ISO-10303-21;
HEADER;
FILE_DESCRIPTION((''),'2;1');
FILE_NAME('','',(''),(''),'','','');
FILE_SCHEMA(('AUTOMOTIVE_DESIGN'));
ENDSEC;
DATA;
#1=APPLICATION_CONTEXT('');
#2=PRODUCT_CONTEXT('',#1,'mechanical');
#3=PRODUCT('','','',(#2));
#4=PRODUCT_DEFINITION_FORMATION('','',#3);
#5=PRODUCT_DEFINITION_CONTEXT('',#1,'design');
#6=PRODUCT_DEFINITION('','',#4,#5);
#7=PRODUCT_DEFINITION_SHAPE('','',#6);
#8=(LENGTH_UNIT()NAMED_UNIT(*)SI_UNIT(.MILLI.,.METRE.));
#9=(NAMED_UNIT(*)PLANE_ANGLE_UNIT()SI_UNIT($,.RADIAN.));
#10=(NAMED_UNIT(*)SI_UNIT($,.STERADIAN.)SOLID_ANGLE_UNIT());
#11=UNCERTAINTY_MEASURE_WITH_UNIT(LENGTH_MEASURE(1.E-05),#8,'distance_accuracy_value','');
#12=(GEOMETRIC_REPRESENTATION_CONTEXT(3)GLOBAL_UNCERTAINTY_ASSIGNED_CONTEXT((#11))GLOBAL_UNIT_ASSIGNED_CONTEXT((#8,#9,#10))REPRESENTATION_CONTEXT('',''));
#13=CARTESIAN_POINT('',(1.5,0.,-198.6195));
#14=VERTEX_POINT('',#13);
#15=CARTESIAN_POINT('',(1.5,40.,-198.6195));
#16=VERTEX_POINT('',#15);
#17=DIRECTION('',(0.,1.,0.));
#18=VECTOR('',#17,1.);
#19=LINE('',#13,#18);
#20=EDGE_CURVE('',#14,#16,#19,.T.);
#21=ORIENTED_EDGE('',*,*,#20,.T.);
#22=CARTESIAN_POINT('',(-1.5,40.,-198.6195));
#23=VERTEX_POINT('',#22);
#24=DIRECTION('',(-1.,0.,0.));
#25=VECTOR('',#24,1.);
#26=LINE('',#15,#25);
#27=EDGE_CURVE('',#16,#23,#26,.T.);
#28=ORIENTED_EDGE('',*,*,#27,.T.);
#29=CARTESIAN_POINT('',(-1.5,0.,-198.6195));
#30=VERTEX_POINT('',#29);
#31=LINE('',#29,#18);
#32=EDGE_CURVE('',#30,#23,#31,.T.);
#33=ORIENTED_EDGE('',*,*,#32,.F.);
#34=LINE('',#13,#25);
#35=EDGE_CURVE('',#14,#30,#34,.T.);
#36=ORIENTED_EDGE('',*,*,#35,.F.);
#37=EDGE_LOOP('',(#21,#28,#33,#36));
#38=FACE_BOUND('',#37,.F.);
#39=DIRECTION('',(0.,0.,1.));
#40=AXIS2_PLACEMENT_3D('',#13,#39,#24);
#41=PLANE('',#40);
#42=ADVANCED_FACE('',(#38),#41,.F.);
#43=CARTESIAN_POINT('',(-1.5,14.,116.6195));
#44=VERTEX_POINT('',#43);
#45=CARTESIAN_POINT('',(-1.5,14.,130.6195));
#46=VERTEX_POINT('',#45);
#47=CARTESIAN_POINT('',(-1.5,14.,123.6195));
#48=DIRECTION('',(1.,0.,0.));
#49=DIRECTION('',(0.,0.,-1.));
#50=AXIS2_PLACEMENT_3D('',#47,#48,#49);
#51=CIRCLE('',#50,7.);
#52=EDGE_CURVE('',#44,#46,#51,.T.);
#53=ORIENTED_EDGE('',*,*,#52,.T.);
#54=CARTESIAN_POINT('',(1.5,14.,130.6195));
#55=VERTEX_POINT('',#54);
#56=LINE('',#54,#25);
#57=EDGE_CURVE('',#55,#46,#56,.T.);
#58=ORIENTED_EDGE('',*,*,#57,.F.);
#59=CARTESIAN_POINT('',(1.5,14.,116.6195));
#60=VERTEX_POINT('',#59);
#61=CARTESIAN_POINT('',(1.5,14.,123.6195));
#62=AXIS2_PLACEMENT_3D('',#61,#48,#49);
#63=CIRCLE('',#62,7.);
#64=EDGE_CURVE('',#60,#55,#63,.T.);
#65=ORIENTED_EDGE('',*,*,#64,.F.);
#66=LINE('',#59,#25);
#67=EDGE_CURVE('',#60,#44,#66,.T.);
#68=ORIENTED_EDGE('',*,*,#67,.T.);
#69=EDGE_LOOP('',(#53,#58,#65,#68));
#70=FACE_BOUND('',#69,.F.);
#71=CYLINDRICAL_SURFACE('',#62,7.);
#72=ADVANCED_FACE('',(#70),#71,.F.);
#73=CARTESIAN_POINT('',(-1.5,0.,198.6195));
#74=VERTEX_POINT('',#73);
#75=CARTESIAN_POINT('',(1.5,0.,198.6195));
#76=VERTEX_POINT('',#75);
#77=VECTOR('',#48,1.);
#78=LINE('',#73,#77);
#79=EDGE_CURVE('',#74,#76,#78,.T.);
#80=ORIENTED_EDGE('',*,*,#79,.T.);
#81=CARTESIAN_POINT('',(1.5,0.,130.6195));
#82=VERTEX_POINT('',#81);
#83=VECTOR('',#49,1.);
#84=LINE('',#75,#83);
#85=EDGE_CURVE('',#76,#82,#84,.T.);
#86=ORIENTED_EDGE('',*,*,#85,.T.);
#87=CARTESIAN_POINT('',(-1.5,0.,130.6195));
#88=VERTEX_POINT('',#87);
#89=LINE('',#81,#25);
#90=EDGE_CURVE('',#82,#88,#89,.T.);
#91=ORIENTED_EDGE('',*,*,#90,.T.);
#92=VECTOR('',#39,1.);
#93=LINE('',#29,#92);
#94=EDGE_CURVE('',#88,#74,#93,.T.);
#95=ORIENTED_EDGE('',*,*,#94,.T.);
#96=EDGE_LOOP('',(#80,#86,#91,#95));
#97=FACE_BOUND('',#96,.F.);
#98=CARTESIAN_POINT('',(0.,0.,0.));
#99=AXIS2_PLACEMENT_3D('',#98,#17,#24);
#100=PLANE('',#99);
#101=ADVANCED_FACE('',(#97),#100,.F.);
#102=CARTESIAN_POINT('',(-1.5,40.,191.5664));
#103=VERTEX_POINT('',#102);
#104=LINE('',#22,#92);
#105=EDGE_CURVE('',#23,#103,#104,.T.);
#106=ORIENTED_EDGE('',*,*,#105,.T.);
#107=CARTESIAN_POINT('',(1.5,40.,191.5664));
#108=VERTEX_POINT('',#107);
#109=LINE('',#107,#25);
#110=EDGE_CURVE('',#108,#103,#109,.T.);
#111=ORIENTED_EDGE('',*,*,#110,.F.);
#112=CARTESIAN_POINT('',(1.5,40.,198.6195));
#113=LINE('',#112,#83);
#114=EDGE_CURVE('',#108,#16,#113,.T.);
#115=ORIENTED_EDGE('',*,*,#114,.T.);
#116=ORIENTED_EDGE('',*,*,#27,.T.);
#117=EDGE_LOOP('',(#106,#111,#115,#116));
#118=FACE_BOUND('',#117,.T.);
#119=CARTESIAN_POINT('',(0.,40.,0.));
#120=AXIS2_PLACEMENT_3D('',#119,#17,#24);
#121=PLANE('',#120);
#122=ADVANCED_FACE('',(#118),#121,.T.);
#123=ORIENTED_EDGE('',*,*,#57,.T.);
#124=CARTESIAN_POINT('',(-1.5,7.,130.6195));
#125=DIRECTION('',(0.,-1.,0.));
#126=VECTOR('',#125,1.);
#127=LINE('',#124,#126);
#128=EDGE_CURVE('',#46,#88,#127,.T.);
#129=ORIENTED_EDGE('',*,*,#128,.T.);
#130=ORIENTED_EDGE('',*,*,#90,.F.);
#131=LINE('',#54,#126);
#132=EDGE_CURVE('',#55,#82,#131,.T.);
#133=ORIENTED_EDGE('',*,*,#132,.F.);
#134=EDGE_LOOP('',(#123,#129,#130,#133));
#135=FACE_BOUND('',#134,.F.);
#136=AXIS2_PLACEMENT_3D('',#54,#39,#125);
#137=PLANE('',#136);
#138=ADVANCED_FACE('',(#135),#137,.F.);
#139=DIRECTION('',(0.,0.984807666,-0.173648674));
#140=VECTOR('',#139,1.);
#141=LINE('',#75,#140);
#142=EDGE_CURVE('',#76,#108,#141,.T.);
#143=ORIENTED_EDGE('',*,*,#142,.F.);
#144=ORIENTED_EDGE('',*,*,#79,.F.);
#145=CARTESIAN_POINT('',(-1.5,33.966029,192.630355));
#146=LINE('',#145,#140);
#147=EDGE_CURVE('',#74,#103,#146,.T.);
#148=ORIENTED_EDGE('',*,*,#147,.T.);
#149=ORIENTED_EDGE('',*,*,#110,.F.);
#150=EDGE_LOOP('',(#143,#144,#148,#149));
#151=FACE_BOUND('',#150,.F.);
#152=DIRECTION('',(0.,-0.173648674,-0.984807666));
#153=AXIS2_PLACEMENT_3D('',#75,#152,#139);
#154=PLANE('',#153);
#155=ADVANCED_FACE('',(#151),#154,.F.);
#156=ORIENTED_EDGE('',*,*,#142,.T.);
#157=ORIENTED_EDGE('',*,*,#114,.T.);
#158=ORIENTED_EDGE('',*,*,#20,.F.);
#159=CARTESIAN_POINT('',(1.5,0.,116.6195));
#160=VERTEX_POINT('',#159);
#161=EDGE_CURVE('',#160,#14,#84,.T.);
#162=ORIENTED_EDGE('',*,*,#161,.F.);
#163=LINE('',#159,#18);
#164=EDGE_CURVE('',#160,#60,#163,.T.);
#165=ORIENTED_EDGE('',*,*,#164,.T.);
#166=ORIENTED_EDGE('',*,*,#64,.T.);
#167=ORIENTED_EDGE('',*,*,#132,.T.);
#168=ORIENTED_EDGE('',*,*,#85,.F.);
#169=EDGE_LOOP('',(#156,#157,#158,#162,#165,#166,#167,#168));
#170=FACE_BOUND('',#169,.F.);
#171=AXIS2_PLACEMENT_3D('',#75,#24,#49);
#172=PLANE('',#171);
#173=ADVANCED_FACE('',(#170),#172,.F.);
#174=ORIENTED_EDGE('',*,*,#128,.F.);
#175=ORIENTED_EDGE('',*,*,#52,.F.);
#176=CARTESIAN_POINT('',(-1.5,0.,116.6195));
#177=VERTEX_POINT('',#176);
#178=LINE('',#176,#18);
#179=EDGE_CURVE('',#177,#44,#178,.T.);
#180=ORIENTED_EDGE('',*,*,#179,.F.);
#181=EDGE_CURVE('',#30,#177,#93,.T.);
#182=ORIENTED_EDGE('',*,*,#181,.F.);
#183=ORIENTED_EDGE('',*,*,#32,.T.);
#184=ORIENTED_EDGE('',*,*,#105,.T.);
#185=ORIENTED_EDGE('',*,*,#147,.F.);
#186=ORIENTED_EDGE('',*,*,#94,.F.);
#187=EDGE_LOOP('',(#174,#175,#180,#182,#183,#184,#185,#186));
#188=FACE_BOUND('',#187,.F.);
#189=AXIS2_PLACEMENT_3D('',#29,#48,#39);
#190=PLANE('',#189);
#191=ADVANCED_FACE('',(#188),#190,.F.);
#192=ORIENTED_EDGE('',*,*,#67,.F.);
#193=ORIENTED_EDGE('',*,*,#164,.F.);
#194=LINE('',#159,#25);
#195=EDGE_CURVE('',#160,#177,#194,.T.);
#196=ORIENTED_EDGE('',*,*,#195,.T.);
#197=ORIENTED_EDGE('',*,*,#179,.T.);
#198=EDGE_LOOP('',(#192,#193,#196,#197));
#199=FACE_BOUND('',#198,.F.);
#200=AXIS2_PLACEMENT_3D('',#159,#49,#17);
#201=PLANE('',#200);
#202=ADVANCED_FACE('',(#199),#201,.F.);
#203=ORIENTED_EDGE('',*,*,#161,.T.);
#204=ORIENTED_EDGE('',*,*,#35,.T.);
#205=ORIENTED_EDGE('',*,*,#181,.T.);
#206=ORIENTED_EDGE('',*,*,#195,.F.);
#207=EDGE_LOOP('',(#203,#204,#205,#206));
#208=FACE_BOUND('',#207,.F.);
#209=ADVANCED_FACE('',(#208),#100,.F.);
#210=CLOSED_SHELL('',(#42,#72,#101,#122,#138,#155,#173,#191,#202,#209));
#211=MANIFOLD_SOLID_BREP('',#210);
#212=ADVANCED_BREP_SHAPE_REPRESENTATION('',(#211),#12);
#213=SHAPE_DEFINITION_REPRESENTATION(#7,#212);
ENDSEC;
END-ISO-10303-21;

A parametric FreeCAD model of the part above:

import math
import FreeCAD as App
import Part
import Sketcher
from FreeCAD import Vector
Q = App.Units.Quantity

doc = App.newDocument("Part")
params = doc.addObject("Spreadsheet::Sheet", "Params")
for row, (alias, value) in enumerate([
    ("sketch1_width", "3 mm"),
    ("pad1_length", "40 mm"),
    ("sketch2_radius", "7 mm"),
    ("sketch3_width", "40 mm"),
], start=1):
    params.set(f"A{row}", alias)
    params.set(f"B{row}", "=" + value)
    params.setAlias(f"B{row}", alias)

body = doc.addObject("PartDesign::Body", "Body")

# Sketch on XZ plane
sketch1 = body.newObject("Sketcher::SketchObject", "Sketch")
sketch1.AttachmentSupport = (doc.getObject("XZ_Plane"), [""])
sketch1.MapMode = "FlatFace"
sketch1.addGeometry(Part.LineSegment(Vector(1.5, 198.6, 0), Vector(1.5, -198.6, 0)), False)
sketch1.addGeometry(Part.LineSegment(Vector(1.5, -198.6, 0), Vector(-1.5, -198.6, 0)), False)
sketch1.addGeometry(Part.LineSegment(Vector(-1.5, -198.6, 0), Vector(-1.5, 198.6, 0)), False)
sketch1.addGeometry(Part.LineSegment(Vector(-1.5, 198.6, 0), Vector(1.5, 198.6, 0)), False)
sketch1.addConstraint(Sketcher.Constraint("Coincident", 0, 2, 1, 1))
sketch1.addConstraint(Sketcher.Constraint("Coincident", 1, 2, 2, 1))
sketch1.addConstraint(Sketcher.Constraint("Coincident", 2, 2, 3, 1))
sketch1.addConstraint(Sketcher.Constraint("Coincident", 3, 2, 0, 1))
sketch1.addConstraint(Sketcher.Constraint("Vertical", 0))
sketch1.addConstraint(Sketcher.Constraint("Horizontal", 1))
sketch1.addConstraint(Sketcher.Constraint("Vertical", 2))
sketch1.addConstraint(Sketcher.Constraint("Horizontal", 3))
sketch1.addConstraint(Sketcher.Constraint("Symmetric", 0, 2, 2, 2, -1, 1))
sketch1.addConstraint(Sketcher.Constraint("DistanceX", 1, 2, 1, 1, 3.0))
sketch1.addConstraint(Sketcher.Constraint("DistanceY", 0, 2, 0, 1, 397.239))
sketch1.setExpression("Constraints[9]", "Params.sketch1_width")
pad1 = body.newObject("PartDesign::Pad", "Pad")
pad1.Profile = sketch1
pad1.setExpression("Length", "Params.pad1_length")
pad1.Reversed = True

# Sketch on YZ plane
sketch2 = body.newObject("Sketcher::SketchObject", "Sketch001")
sketch2.AttachmentSupport = (doc.getObject("YZ_Plane"), [""])
sketch2.MapMode = "FlatFace"
sketch2.AttachmentOffset = App.Placement(Vector(0, 0, 1.5), App.Rotation())
sketch2.addGeometry(Part.LineSegment(Vector(0, 131, 0), Vector(0, 117, 0)), False)
sketch2.addGeometry(Part.LineSegment(Vector(0, 117, 0), Vector(14, 117, 0)), False)
sketch2.addGeometry(Part.ArcOfCircle(Part.Circle(Vector(14, 124, 0), Vector(0, 0, 1), 7), math.radians(-90), math.radians(90)), False)
sketch2.addGeometry(Part.LineSegment(Vector(14, 131, 0), Vector(0, 131, 0)), False)
sketch2.addConstraint(Sketcher.Constraint("Coincident", 0, 2, 1, 1))
sketch2.addConstraint(Sketcher.Constraint("Tangent", 1, 2, 2, 1))
sketch2.addConstraint(Sketcher.Constraint("Tangent", 2, 2, 3, 1))
sketch2.addConstraint(Sketcher.Constraint("Coincident", 3, 2, 0, 1))
sketch2.addConstraint(Sketcher.Constraint("Vertical", 0))
sketch2.addConstraint(Sketcher.Constraint("Horizontal", 1))
sketch2.addConstraint(Sketcher.Constraint("Horizontal", 3))
sketch2.addConstraint(Sketcher.Constraint("PointOnObject", 0, 2, -2))
sketch2.addConstraint(Sketcher.Constraint("Equal", 3, 0))
sketch2.addConstraint(Sketcher.Constraint("Radius", 2, 7.0))
sketch2.addConstraint(Sketcher.Constraint("DistanceY", -1, 1, 2, 3, 123.6195))
sketch2.setExpression("Constraints[9]", "Params.sketch2_radius")
pocket1 = body.newObject("PartDesign::Pocket", "Pocket")
pocket1.Profile = sketch2
pocket1.Type = "ThroughAll"

# Sketch on YZ plane
sketch3 = body.newObject("Sketcher::SketchObject", "Sketch002")
sketch3.AttachmentSupport = (doc.getObject("YZ_Plane"), [""])
sketch3.MapMode = "FlatFace"
sketch3.AttachmentOffset = App.Placement(Vector(0, 0, 1.5), App.Rotation())
sketch3.addGeometry(Part.LineSegment(Vector(40, 199, 0), Vector(0, 199, 0)), False)
sketch3.addGeometry(Part.LineSegment(Vector(0, 199, 0), Vector(40, 192, 0)), False)
sketch3.addGeometry(Part.LineSegment(Vector(40, 192, 0), Vector(40, 199, 0)), False)
sketch3.addConstraint(Sketcher.Constraint("Coincident", 0, 2, 1, 1))
sketch3.addConstraint(Sketcher.Constraint("Coincident", 1, 2, 2, 1))
sketch3.addConstraint(Sketcher.Constraint("Coincident", 2, 2, 0, 1))
sketch3.addConstraint(Sketcher.Constraint("Horizontal", 0))
sketch3.addConstraint(Sketcher.Constraint("Vertical", 2))
sketch3.addConstraint(Sketcher.Constraint("PointOnObject", 0, 2, -2))
sketch3.addConstraint(Sketcher.Constraint("Angle", 1, Q("-10 deg")))
sketch3.addConstraint(Sketcher.Constraint("DistanceX", 0, 2, 0, 1, 40.0))
sketch3.addConstraint(Sketcher.Constraint("DistanceY", -1, 1, 0, 2, 198.6195))
sketch3.setExpression("Constraints[7]", "Params.sketch3_width")
pocket2 = body.newObject("PartDesign::Pocket", "Pocket001")
pocket2.Profile = sketch3
pocket2.Type = "ThroughAll"

doc.recompute()
